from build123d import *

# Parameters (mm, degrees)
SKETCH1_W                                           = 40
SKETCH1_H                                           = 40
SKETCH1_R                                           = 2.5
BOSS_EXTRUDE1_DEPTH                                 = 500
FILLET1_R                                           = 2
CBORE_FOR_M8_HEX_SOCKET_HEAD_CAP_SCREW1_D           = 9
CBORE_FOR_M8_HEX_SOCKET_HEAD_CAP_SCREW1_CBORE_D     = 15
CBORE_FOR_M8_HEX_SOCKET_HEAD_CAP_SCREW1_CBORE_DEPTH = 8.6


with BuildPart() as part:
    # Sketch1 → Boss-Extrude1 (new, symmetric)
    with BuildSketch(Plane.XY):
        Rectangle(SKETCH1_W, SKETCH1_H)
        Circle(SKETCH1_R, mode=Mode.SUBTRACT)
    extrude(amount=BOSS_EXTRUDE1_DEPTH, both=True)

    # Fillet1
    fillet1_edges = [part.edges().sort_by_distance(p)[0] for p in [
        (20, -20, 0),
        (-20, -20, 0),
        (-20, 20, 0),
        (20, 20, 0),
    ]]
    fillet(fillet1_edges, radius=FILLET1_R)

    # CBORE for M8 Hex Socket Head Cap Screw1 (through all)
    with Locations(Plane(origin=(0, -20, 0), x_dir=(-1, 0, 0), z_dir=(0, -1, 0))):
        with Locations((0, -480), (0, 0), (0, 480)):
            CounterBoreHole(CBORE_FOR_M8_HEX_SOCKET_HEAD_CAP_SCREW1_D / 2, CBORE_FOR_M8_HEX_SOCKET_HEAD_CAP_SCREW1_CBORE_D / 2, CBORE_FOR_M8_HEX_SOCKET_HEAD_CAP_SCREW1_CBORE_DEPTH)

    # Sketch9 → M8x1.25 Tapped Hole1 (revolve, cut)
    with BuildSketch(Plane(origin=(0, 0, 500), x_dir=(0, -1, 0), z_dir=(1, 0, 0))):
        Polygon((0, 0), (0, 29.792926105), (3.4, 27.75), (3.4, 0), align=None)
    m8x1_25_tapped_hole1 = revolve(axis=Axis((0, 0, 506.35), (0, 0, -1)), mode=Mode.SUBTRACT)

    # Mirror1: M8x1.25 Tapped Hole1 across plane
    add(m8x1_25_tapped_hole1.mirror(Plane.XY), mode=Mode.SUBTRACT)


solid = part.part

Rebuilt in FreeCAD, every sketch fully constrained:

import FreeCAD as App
import Part
import Sketcher
from FreeCAD import Vector
Q = App.Units.Quantity


def edges_at(feature, points):
    """Names of the edges that pass closest to the given points."""
    edges = feature.Shape.Edges
    near = lambda p: min(range(len(edges)), key=lambda i: edges[i].distToShape(Part.Vertex(*p))[0])
    return sorted({f"Edge{near(p) + 1}" for p in points})

doc = App.newDocument("Part")
body = doc.addObject("PartDesign::Body", "Body")

# Sketch on XY plane
sketch1 = doc.addObject("Sketcher::SketchObject", "Sketch")
body.addObject(sketch1)
sketch1.AttachmentSupport = (doc.XY_Plane, [""])
sketch1.MapMode = "FlatFace"
sketch1.addGeometry([
    Part.LineSegment(Vector(-20, 20, 0), Vector(-20, -20, 0)),  # 0
    Part.LineSegment(Vector(-20, -20, 0), Vector(20, -20, 0)),  # 1
    Part.LineSegment(Vector(20, -20, 0), Vector(20, 20, 0)),  # 2
    Part.LineSegment(Vector(20, 20, 0), Vector(-20, 20, 0)),  # 3
    Part.Circle(Vector(0, 0, 0), Vector(0, 0, 1), 2.5),  # 4
], False)
sketch1.addConstraint([
    Sketcher.Constraint("Coincident", 0, 2, 1, 1),
    Sketcher.Constraint("Coincident", 1, 2, 2, 1),
    Sketcher.Constraint("Coincident", 2, 2, 3, 1),
    Sketcher.Constraint("Coincident", 3, 2, 0, 1),
    Sketcher.Constraint("Vertical", 0),
    Sketcher.Constraint("Horizontal", 1),
    Sketcher.Constraint("Vertical", 2),
    Sketcher.Constraint("Horizontal", 3),
    Sketcher.Constraint("Coincident", 4, 3, -1, 1),
    Sketcher.Constraint("Symmetric", 0, 2, 2, 2, -1, 1),
    Sketcher.Constraint("Equal", 3, 0),
    Sketcher.Constraint("Diameter", 4, Q("5 mm")),
    Sketcher.Constraint("DistanceX", 1, 1, 1, 2, Q("40 mm")),
])
pad1 = doc.addObject("PartDesign::Pad", "Pad")
body.addObject(pad1)
pad1.Profile = sketch1
pad1.Length = 1000
pad1.Midplane = True
doc.recompute()

fillet = doc.addObject("PartDesign::Fillet", "Fillet")
body.addObject(fillet)
fillet.Base = (pad1, edges_at(pad1, [
    (20, -20, 0),
    (-20, -20, 0),
    (-20, 20, 0),
    (20, 20, 0),
]))
fillet.Radius = 2

# Sketch on XZ plane
sketch2 = doc.addObject("Sketcher::SketchObject", "Sketch001")
body.addObject(sketch2)
sketch2.AttachmentSupport = (doc.XZ_Plane, [""])
sketch2.MapMode = "FlatFace"
sketch2.AttachmentOffset = App.Placement(Vector(0, 0, 20), App.Rotation())
sketch2.addGeometry([
    Part.Circle(Vector(0, 480, 0), Vector(0, 0, 1), 4.5),
    Part.Circle(Vector(0, 0, 0), Vector(0, 0, 1), 4.5),
    Part.Circle(Vector(0, -480, 0), Vector(0, 0, 1), 4.5),
], False)
sketch2.addConstraint([
    Sketcher.Constraint("Coincident", 1, 3, -1, 1),
    Sketcher.Constraint("Equal", 0, 1),
    Sketcher.Constraint("Equal", 1, 2),
    Sketcher.Constraint("Symmetric", 0, 3, 2, 3, -1, 1),
    Sketcher.Constraint("PointOnObject", 0, 3, -2),
    Sketcher.Constraint("Diameter", 0, Q("9 mm")),
    Sketcher.Constraint("DistanceY", -1, 1, 0, 3, Q("480 mm")),
])
doc.recompute()
hole = doc.addObject("PartDesign::Hole", "Hole")
body.addObject(hole)
hole.Profile = sketch2
hole.ThreadType = "None"
hole.Diameter = 9
hole.DepthType = "ThroughAll"
hole.HoleCutType = "Counterbore"
hole.HoleCutDiameter = 15
hole.HoleCutDepth = 8.6

# Sketch on YZ plane
sketch3 = doc.addObject("Sketcher::SketchObject", "Sketch002")
body.addObject(sketch3)
sketch3.AttachmentSupport = (doc.YZ_Plane, [""])
sketch3.MapMode = "FlatFace"
sketch3.addGeometry([
    Part.LineSegment(Vector(0, 470.207074, 0), Vector(0, 500, 0)),
    Part.LineSegment(Vector(0, 500, 0), Vector(-3.4, 500, 0)),
    Part.LineSegment(Vector(-3.4, 500, 0), Vector(-3.4, 472.25, 0)),
    Part.LineSegment(Vector(-3.4, 472.25, 0), Vector(0, 470.207074, 0)),
], False)
sketch3.addConstraint([
    Sketcher.Constraint("Coincident", 0, 2, 1, 1),
    Sketcher.Constraint("Coincident", 1, 2, 2, 1),
    Sketcher.Constraint("Coincident", 2, 2, 3, 1),
    Sketcher.Constraint("Coincident", 3, 2, 0, 1),
    Sketcher.Constraint("Vertical", 0),
    Sketcher.Constraint("Horizontal", 1),
    Sketcher.Constraint("Vertical", 2),
    Sketcher.Constraint("PointOnObject", 0, 2, -2),
    Sketcher.Constraint("Angle", 3, Q("-31 deg")),
    Sketcher.Constraint("DistanceX", 1, 2, 1, 1, Q("3.4 mm")),
    Sketcher.Constraint("DistanceY", -1, 1, 0, 2, Q("500 mm")),
    Sketcher.Constraint("DistanceY", 2, 2, 2, 1, Q("27.75 mm")),
])
groove = doc.addObject("PartDesign::Groove", "Groove")
body.addObject(groove)
groove.Profile = sketch3
groove.ReferenceAxis = (sketch3, ["V_Axis"])
groove.Angle = 360
doc.recompute()

mirrored = doc.addObject("PartDesign::Mirrored", "Mirrored")
body.addObject(mirrored)
mirrored.Originals = [groove]
mirrored.MirrorPlane = (doc.XY_Plane, [""])
body.Tip = mirrored

doc.recompute()
